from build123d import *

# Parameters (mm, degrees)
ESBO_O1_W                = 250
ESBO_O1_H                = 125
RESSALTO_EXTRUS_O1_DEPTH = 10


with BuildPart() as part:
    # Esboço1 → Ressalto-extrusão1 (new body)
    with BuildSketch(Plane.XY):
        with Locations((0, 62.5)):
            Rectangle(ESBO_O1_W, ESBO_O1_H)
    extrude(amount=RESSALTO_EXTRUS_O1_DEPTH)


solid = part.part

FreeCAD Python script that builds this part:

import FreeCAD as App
import Part
import Sketcher
Q = App.Units.Quantity

doc = App.newDocument("Part")
body = doc.addObject("PartDesign::Body", "Body")

sketch1 = doc.addObject("Sketcher::SketchObject", "Sketch")
body.addObject(sketch1)
sketch1.AttachmentSupport = (doc.XY_Plane, [""])
sketch1.MapMode = "FlatFace"
sketch1.addGeometry(Part.LineSegment(App.Vector(-125, 125, 0), App.Vector(-125, 0, 0)), False)
sketch1.addGeometry(Part.LineSegment(App.Vector(-125, 0, 0), App.Vector(125, 0, 0)), False)
sketch1.addGeometry(Part.LineSegment(App.Vector(125, 0, 0), App.Vector(125, 125, 0)), False)
sketch1.addGeometry(Part.LineSegment(App.Vector(125, 125, 0), App.Vector(-125, 125, 0)), False)
sketch1.addConstraint(Sketcher.Constraint("Coincident", 0, 2, 1, 1))
sketch1.addConstraint(Sketcher.Constraint("Coincident", 1, 2, 2, 1))
sketch1.addConstraint(Sketcher.Constraint("Coincident", 2, 2, 3, 1))
sketch1.addConstraint(Sketcher.Constraint("Coincident", 3, 2, 0, 1))
sketch1.addConstraint(Sketcher.Constraint("Vertical", 0))
sketch1.addConstraint(Sketcher.Constraint("Horizontal", 1))
sketch1.addConstraint(Sketcher.Constraint("Vertical", 2))
sketch1.addConstraint(Sketcher.Constraint("Horizontal", 3))
sketch1.addConstraint(Sketcher.Constraint("Symmetric", 0, 2, 1, 2, -1, 1))
sketch1.addConstraint(Sketcher.Constraint("DistanceX", 1, 1, 1, 2, Q("250 mm")))
sketch1.addConstraint(Sketcher.Constraint("DistanceY", 0, 2, 0, 1, Q("125 mm")))
pad1 = doc.addObject("PartDesign::Pad", "Pad")
body.addObject(pad1)
pad1.Profile = sketch1
pad1.Length = 10

doc.recompute()
